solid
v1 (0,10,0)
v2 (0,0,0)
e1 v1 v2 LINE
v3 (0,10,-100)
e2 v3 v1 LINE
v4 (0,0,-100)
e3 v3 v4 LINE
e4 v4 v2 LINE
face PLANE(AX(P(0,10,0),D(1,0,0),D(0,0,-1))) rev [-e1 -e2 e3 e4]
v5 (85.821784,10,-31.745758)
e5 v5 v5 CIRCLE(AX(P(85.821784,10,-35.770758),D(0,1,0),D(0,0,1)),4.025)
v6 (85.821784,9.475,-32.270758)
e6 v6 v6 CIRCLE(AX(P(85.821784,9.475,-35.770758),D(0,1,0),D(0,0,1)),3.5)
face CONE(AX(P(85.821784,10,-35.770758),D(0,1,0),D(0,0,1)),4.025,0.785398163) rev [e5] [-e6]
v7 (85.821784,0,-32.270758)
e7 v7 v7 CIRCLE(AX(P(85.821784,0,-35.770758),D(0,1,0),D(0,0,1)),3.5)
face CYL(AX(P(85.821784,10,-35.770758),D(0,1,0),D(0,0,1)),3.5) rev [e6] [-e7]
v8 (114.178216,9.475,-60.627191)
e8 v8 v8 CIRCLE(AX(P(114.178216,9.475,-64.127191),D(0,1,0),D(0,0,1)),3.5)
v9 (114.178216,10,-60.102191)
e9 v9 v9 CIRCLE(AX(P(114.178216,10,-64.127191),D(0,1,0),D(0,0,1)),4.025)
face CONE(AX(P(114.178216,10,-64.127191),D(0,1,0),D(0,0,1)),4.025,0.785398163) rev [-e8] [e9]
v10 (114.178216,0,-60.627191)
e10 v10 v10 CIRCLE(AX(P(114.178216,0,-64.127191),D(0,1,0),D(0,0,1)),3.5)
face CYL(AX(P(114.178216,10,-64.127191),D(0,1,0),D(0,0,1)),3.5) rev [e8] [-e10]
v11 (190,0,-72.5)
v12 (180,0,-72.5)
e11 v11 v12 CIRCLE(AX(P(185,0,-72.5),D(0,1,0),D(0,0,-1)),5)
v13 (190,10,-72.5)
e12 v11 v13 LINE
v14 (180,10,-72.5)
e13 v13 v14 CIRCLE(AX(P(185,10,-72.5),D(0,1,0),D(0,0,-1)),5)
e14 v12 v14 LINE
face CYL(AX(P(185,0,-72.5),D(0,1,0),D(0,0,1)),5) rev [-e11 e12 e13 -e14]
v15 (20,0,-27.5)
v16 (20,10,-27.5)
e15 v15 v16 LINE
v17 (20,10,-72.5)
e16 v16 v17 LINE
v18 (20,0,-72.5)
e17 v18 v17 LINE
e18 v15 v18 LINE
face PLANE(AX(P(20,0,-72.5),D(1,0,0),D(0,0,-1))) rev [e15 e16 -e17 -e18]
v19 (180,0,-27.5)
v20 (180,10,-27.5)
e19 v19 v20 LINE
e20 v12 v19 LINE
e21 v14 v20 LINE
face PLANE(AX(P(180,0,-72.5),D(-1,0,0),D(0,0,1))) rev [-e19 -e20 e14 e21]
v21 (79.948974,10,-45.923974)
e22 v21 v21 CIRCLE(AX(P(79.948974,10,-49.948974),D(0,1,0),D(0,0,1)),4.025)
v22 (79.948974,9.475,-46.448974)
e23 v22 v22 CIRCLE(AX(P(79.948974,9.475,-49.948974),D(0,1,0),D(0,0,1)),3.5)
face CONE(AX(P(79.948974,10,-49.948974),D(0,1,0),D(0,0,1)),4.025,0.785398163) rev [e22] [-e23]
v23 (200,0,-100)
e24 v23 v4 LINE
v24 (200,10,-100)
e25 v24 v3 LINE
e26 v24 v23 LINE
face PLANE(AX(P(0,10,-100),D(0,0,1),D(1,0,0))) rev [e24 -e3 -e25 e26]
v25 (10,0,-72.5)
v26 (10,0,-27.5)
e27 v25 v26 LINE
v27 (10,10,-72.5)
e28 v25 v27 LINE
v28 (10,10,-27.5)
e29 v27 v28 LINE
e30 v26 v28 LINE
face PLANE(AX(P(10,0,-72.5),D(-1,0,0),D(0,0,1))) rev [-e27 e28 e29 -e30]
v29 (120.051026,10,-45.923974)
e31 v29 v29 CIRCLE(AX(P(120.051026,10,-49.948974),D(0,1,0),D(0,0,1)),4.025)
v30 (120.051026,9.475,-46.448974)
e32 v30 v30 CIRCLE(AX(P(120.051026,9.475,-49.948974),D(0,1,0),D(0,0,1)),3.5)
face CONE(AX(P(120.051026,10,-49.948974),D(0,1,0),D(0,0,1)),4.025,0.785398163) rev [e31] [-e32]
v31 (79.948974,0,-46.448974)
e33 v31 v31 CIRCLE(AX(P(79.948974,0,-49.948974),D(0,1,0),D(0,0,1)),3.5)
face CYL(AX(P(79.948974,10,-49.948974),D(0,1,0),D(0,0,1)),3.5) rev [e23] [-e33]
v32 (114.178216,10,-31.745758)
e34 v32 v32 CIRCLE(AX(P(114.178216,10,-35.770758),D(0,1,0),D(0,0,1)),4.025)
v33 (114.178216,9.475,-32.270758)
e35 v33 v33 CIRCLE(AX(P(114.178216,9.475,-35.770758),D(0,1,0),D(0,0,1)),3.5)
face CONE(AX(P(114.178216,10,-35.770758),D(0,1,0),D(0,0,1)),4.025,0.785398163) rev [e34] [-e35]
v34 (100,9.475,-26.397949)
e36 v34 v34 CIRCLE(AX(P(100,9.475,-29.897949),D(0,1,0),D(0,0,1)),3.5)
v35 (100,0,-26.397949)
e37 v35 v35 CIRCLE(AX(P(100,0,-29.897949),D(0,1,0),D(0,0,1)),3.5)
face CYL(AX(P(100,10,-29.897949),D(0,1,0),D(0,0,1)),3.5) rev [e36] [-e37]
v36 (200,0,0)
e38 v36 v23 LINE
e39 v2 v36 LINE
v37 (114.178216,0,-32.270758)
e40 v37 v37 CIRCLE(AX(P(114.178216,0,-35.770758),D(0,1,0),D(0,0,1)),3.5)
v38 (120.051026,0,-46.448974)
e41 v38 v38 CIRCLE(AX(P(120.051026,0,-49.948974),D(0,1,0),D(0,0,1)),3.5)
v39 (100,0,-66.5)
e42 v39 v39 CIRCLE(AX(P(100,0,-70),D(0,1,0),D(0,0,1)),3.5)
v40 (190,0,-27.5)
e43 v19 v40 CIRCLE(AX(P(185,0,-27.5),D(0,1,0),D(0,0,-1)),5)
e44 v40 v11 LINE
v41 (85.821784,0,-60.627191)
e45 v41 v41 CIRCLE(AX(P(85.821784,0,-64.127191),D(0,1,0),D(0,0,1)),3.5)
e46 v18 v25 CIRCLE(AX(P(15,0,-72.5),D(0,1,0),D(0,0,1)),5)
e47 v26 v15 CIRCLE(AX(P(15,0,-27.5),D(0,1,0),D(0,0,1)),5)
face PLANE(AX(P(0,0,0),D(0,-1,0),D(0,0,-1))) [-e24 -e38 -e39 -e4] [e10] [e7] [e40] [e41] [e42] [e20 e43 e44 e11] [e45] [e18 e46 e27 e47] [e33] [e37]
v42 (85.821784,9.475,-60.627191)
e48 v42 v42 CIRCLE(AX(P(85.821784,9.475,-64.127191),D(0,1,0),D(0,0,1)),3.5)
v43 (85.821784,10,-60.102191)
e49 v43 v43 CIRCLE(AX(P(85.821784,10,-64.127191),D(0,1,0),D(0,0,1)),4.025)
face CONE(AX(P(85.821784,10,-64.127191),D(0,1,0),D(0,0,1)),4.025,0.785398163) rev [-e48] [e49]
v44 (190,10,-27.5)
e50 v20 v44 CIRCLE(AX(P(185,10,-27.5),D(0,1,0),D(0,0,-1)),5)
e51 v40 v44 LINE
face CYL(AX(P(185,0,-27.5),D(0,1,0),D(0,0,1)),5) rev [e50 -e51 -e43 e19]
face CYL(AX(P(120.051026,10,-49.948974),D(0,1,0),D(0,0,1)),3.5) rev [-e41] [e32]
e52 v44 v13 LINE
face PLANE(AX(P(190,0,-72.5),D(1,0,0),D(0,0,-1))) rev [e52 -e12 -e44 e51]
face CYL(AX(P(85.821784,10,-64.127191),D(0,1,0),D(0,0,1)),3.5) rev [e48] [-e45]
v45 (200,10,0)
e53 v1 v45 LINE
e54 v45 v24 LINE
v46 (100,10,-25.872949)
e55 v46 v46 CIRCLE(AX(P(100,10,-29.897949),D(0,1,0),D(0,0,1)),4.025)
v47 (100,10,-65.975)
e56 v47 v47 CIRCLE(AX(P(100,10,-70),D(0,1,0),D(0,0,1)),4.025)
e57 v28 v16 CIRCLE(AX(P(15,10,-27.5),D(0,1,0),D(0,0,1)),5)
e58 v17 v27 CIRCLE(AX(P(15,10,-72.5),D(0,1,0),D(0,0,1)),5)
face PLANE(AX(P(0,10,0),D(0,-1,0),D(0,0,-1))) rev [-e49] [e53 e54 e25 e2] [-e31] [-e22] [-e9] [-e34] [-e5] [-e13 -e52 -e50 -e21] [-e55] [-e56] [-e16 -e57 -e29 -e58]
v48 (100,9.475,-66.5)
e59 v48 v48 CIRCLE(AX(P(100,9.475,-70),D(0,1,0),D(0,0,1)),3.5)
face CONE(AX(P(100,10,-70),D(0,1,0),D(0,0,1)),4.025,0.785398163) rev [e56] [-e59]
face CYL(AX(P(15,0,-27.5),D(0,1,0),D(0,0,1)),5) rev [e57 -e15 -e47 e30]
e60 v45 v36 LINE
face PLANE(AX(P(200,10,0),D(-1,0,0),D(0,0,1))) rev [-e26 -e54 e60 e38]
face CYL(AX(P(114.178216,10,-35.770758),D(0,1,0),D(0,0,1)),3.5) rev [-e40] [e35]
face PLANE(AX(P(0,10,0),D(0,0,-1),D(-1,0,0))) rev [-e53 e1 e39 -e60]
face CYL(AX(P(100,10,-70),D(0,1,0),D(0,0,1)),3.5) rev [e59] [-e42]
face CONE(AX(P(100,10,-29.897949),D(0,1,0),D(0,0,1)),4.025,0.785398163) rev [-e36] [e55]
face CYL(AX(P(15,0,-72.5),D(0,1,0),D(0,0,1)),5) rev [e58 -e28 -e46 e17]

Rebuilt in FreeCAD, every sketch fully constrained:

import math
import FreeCAD as App
import Part
import Sketcher
Q = App.Units.Quantity

doc = App.newDocument("Part")
params = doc.addObject("Spreadsheet::Sheet", "Params")
for row, (alias, value) in enumerate([
    ("sketch1_width", "200 mm"),
    ("sketch1_height", "100 mm"),
    ("pad1_length", "10 mm"),
    ("sketch2_diameter", "7 mm"),
    ("hole_diameter", "7 mm"),
    ("hole_csink_diameter", "8.05 mm"),
    ("sketch3_radius", "5 mm"),
    ("sketch3_height", "45 mm"),
], start=1):
    params.set(f"A{row}", alias)
    params.set(f"B{row}", "=" + value)
    params.setAlias(f"B{row}", alias)

body = doc.addObject("PartDesign::Body", "Body")

sketch1 = body.newObject("Sketcher::SketchObject", "Sketch")
sketch1.AttachmentSupport = (doc.getObject("XZ_Plane"), [""])
sketch1.MapMode = "FlatFace"
sketch1.addGeometry([
    Part.LineSegment(App.Vector(0, -100, 0), App.Vector(0, 0, 0)),
    Part.LineSegment(App.Vector(0, 0, 0), App.Vector(200, 0, 0)),
    Part.LineSegment(App.Vector(200, 0, 0), App.Vector(200, -100, 0)),
    Part.LineSegment(App.Vector(200, -100, 0), App.Vector(0, -100, 0)),
], False)
sketch1.addConstraint([
    Sketcher.Constraint("Coincident", 0, 2, 1, 1),
    Sketcher.Constraint("Coincident", 1, 2, 2, 1),
    Sketcher.Constraint("Coincident", 2, 2, 3, 1),
    Sketcher.Constraint("Coincident", 3, 2, 0, 1),
    Sketcher.Constraint("Vertical", 0),
    Sketcher.Constraint("Horizontal", 1),
    Sketcher.Constraint("Vertical", 2),
    Sketcher.Constraint("Horizontal", 3),
    Sketcher.Constraint("Coincident", 0, 2, -1, 1),
    Sketcher.Constraint("DistanceX", 1, 1, 1, 2, Q("200 mm")),
    Sketcher.Constraint("DistanceY", 0, 1, 0, 2, Q("100 mm")),
])
sketch1.setExpression("Constraints[9]", "Params.sketch1_width")
sketch1.setExpression("Constraints[10]", "Params.sketch1_height")
pad1 = body.newObject("PartDesign::Pad", "Pad")
pad1.Profile = sketch1
pad1.setExpression("Length", "Params.pad1_length")
pad1.Reversed = True

sketch2 = body.newObject("Sketcher::SketchObject", "Sketch001")
sketch2.AttachmentSupport = (doc.getObject("XZ_Plane"), [""])
sketch2.MapMode = "FlatFace"
sketch2.AttachmentOffset = App.Placement(App.Vector(0, 0, -10), App.Rotation())
sketch2.addGeometry(Part.Circle(App.Vector(100, -70, 0), App.Vector(0, 0, 1), 3.5), False)
sketch2.addConstraint([
    Sketcher.Constraint("Diameter", 0, Q("7 mm")),
    Sketcher.Constraint("DistanceX", -1, 1, 0, 3, Q("100 mm")),
    Sketcher.Constraint("DistanceY", 0, 3, -1, 1, Q("70 mm")),
])
sketch2.setExpression("Constraints[0]", "Params.sketch2_diameter")
doc.recompute()
hole = body.newObject("PartDesign::Hole", "Hole")
hole.Profile = sketch2
hole.ThreadType = "None"
hole.setExpression("Diameter", "Params.hole_diameter")
hole.DepthType = "ThroughAll"
hole.HoleCutType = "Countersink"
hole.setExpression("HoleCutDiameter", "Params.hole_csink_diameter")
hole.HoleCutCountersinkAngle = 90
hole.Reversed = True
doc.recompute()

datumline = body.newObject("PartDesign::Line", "DatumLine")
datumline.Placement = App.Placement(App.Vector(100, 0, -49.948974), App.Rotation(App.Vector(0, 0, 1), App.Vector(0, 1, 0)))
polarpattern = body.newObject("PartDesign::PolarPattern", "PolarPattern")
polarpattern.Originals = [hole]
polarpattern.Axis = (datumline, [""])
polarpattern.Angle = 360
polarpattern.Occurrences = 8
body.Tip = polarpattern

sketch3 = body.newObject("Sketcher::SketchObject", "Sketch002")
sketch3.AttachmentSupport = (doc.getObject("XZ_Plane"), [""])
sketch3.MapMode = "FlatFace"
sketch3.AttachmentOffset = App.Placement(App.Vector(0, 0, -10), App.Rotation())
sketch3.addGeometry([
    Part.LineSegment(App.Vector(20, -28, 0), App.Vector(20, -72, 0)),
    Part.ArcOfCircle(Part.Circle(App.Vector(15, -72, 0), App.Vector(0, 0, 1), 5), math.radians(180), math.radians(360)),
    Part.LineSegment(App.Vector(10, -72, 0), App.Vector(10, -28, 0)),
    Part.ArcOfCircle(Part.Circle(App.Vector(15, -28, 0), App.Vector(0, 0, 1), 5), math.radians(0), math.radians(180)),
    Part.LineSegment(App.Vector(180, -72, 0), App.Vector(180, -28, 0)),
    Part.ArcOfCircle(Part.Circle(App.Vector(185, -28, 0), App.Vector(0, 0, 1), 5), math.radians(0), math.radians(180)),
    Part.LineSegment(App.Vector(190, -28, 0), App.Vector(190, -72, 0)),
    Part.ArcOfCircle(Part.Circle(App.Vector(185, -72, 0), App.Vector(0, 0, 1), 5), math.radians(180), math.radians(360)),
], False)
sketch3.addConstraint([
    Sketcher.Constraint("Tangent", 0, 2, 1, 2),
    Sketcher.Constraint("Tangent", 1, 1, 2, 1),
    Sketcher.Constraint("Tangent", 2, 2, 3, 2),
    Sketcher.Constraint("Tangent", 3, 1, 0, 1),
    Sketcher.Constraint("Tangent", 4, 2, 5, 2),
    Sketcher.Constraint("Tangent", 5, 1, 6, 1),
    Sketcher.Constraint("Tangent", 6, 2, 7, 2),
    Sketcher.Constraint("Tangent", 7, 1, 4, 1),
    Sketcher.Constraint("Vertical", 0),
    Sketcher.Constraint("Vertical", 2),
    Sketcher.Constraint("Vertical", 4),
    Sketcher.Constraint("Vertical", 6),
    Sketcher.Constraint("Equal", 3, 5),
    Sketcher.Constraint("Horizontal", 3, 3, 5, 3),
    Sketcher.Constraint("Horizontal", 1, 3, 7, 3),
    Sketcher.Constraint("Radius", 1, Q("5 mm")),
    Sketcher.Constraint("DistanceY", 0, 2, 0, 1, Q("45 mm")),
    Sketcher.Constraint("DistanceX", -1, 1, 1, 3, Q("15 mm")),
    Sketcher.Constraint("DistanceX", -1, 1, 5, 3, Q("185 mm")),
    Sketcher.Constraint("DistanceY", 1, 3, -1, 1, Q("72.5 mm")),
])
sketch3.setExpression("Constraints[15]", "Params.sketch3_radius")
sketch3.setExpression("Constraints[16]", "Params.sketch3_height")
pocket1 = body.newObject("PartDesign::Pocket", "Pocket")
pocket1.Profile = sketch3
pocket1.Type = "ThroughAll"
pocket1.Reversed = True

doc.recompute()
